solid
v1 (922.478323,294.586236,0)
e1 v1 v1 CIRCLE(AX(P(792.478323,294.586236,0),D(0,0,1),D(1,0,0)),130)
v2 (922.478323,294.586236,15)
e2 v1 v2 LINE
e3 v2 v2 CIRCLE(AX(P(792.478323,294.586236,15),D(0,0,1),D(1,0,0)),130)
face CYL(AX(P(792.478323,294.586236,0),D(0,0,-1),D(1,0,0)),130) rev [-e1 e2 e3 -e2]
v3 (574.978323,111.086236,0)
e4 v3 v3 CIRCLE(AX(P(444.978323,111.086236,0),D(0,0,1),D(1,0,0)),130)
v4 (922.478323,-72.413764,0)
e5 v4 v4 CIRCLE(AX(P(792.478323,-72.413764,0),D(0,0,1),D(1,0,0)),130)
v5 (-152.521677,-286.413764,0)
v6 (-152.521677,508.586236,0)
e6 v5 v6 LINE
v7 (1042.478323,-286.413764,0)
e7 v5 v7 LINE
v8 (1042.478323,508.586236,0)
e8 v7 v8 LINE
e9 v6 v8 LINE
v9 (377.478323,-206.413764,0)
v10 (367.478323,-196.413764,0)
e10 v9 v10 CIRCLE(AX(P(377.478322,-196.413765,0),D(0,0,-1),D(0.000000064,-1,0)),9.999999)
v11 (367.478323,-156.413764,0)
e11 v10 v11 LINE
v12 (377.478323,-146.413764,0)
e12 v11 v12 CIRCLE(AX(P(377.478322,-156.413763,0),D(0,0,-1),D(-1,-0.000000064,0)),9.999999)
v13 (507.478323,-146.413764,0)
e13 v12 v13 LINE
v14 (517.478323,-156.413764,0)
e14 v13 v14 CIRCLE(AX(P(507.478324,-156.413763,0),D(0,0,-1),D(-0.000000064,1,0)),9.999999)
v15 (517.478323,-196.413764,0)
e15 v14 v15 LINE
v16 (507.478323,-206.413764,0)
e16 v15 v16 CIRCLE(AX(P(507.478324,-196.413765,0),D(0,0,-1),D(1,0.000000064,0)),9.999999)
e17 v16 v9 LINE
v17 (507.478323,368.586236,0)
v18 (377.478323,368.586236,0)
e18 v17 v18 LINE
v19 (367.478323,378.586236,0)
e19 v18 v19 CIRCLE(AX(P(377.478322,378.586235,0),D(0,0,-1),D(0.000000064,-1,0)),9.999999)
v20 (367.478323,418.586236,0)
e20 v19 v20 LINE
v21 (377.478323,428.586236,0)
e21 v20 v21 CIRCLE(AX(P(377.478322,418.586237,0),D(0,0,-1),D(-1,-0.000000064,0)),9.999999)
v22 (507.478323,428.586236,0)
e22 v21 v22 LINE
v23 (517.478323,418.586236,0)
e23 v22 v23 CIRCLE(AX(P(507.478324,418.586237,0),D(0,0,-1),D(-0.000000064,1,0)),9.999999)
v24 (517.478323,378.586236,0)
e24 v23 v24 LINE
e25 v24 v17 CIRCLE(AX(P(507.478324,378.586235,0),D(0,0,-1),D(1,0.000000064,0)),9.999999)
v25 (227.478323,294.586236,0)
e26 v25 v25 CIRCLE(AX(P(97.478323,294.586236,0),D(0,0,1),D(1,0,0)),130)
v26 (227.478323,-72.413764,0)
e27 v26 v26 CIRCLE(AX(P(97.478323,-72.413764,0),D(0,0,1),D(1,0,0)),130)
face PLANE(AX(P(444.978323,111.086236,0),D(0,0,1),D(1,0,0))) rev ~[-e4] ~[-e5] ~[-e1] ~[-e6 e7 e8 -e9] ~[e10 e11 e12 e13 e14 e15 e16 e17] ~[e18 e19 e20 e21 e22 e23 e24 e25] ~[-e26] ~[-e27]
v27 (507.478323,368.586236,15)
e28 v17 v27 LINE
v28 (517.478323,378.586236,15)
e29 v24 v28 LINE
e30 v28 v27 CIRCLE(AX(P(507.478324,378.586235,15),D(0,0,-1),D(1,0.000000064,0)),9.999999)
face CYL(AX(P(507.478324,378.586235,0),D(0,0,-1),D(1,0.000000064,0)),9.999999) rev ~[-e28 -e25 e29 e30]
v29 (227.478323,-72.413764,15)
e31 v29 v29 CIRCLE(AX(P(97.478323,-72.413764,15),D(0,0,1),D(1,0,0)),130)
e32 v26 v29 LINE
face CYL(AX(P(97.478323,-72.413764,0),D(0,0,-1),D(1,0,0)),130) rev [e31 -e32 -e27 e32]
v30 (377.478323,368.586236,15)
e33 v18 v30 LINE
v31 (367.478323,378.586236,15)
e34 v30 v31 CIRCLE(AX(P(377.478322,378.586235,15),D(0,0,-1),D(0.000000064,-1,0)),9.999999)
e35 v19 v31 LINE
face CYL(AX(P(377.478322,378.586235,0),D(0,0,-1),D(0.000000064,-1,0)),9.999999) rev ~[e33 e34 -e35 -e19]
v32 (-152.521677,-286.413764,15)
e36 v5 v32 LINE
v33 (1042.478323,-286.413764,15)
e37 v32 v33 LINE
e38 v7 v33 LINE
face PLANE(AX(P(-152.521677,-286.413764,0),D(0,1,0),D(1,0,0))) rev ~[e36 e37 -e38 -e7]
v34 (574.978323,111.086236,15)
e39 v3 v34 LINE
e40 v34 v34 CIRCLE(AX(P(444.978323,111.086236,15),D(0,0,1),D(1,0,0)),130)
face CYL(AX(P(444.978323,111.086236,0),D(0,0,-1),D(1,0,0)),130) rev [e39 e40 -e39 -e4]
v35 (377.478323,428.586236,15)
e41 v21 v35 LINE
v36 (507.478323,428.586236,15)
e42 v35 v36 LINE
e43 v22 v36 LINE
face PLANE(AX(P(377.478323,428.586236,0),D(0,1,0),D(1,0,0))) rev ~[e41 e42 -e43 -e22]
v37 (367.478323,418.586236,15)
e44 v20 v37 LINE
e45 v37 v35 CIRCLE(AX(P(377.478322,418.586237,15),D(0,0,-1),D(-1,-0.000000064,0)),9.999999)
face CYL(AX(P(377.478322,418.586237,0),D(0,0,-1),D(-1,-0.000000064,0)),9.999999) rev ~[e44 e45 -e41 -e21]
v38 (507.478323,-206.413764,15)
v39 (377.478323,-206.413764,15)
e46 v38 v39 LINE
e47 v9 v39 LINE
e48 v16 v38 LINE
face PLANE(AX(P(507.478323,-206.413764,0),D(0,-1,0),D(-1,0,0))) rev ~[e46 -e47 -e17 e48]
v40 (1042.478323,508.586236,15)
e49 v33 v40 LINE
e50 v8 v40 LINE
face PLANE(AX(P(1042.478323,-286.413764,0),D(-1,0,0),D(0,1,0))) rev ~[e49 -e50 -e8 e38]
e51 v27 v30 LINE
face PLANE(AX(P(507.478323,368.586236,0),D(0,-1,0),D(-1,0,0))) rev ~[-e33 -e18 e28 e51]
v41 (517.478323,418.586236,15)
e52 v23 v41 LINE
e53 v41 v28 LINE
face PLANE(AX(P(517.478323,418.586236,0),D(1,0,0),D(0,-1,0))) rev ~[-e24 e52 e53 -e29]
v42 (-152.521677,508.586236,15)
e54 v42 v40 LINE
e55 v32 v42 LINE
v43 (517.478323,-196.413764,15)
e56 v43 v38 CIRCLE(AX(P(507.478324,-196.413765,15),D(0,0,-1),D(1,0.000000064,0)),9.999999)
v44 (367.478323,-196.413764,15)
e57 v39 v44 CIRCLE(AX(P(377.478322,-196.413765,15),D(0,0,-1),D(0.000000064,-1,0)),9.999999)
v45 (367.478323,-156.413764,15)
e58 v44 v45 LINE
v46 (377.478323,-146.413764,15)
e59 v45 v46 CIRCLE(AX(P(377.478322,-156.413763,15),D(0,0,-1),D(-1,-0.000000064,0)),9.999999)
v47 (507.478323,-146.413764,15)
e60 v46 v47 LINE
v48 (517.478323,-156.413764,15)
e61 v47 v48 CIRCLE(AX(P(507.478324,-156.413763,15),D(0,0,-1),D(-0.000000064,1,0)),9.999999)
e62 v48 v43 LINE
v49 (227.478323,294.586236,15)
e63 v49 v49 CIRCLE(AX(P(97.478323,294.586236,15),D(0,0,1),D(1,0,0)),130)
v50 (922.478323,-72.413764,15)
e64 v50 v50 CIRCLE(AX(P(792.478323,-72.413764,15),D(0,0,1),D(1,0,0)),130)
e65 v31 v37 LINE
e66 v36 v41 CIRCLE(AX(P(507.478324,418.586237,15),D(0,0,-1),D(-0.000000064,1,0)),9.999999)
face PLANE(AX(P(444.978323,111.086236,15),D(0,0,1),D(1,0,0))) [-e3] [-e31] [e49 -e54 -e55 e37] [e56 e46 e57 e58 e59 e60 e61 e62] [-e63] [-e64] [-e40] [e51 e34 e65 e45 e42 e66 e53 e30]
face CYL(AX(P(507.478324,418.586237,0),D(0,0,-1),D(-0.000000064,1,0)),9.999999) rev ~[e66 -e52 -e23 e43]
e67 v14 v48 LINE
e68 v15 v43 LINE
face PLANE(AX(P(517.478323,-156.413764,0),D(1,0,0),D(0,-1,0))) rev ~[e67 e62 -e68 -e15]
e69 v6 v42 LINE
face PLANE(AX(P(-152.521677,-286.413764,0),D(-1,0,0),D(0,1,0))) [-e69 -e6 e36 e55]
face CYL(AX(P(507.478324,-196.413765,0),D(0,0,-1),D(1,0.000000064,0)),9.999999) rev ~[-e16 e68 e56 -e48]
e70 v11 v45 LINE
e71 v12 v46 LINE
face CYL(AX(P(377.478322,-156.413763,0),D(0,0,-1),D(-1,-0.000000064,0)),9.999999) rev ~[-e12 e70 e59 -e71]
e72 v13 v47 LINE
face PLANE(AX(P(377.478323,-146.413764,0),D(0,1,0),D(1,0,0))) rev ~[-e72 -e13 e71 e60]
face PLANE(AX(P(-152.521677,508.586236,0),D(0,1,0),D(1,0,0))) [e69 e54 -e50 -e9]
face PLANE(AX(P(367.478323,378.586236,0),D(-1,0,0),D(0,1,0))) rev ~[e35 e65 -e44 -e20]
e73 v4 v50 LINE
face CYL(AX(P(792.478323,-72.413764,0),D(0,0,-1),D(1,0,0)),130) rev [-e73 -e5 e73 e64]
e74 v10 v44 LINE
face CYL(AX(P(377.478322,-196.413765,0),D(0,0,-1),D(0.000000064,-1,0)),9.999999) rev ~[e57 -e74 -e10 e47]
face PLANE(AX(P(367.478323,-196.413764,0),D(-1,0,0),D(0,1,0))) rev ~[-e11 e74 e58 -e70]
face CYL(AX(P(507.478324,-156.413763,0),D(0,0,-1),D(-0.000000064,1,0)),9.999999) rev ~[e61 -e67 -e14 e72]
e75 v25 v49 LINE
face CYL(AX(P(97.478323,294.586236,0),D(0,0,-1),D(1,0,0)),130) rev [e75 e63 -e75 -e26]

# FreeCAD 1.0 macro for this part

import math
import FreeCAD as App
import Part
import Sketcher


def add_polygon(sketch, points):
    """Adds a closed chain of lines whose ends are joined by coincident constraints."""
    first, n = sketch.GeometryCount, len(points)
    for a, b in zip(points, points[1:] + points[:1]):
        sketch.addGeometry(Part.LineSegment(App.Vector(*a, 0), App.Vector(*b, 0)), False)
    for i in range(n):
        sketch.addConstraint(Sketcher.Constraint("Coincident", first + i, 2, first + (i + 1) % n, 1))

doc = App.newDocument("Part")
params = doc.addObject("Spreadsheet::Sheet", "Params")
for row, (alias, value) in enumerate([
    ("sketch1_diameter", "260 mm"),
    ("sketch1_radius", "9.999999 mm"),
    ("sketch1_width", "1195 mm"),
    ("sketch1_width2", "130 mm"),
    ("sketch1_height", "795 mm"),
    ("pad1_length", "15 mm"),
], start=1):
    params.set(f"A{row}", alias)
    params.set(f"B{row}", "=" + value)
    params.setAlias(f"B{row}", alias)

body = doc.addObject("PartDesign::Body", "Body")

sketch1 = doc.addObject("Sketcher::SketchObject", "Sketch")
body.addObject(sketch1)
sketch1.AttachmentSupport = (doc.XY_Plane, [""])
sketch1.MapMode = "FlatFace"
add_polygon(sketch1, [(-153, 509), (-153, -286), (1042, -286), (1042, 509)])
sketch1.addGeometry(Part.Circle(App.Vector(97, -72, 0), App.Vector(0, 0, 1), 130), False)
sketch1.addGeometry(Part.LineSegment(App.Vector(367, -196, 0), App.Vector(367, -156, 0)), False)
sketch1.addGeometry(Part.ArcOfCircle(Part.Circle(App.Vector(377, -156, 0), App.Vector(0, 0, 1), 10), math.radians(90), math.radians(180)), False)
sketch1.addGeometry(Part.LineSegment(App.Vector(377, -146, 0), App.Vector(507, -146, 0)), False)
sketch1.addGeometry(Part.ArcOfCircle(Part.Circle(App.Vector(507, -156, 0), App.Vector(0, 0, 1), 10), math.radians(0), math.radians(90)), False)
sketch1.addGeometry(Part.LineSegment(App.Vector(517, -156, 0), App.Vector(517, -196, 0)), False)
sketch1.addGeometry(Part.ArcOfCircle(Part.Circle(App.Vector(507, -196, 0), App.Vector(0, 0, 1), 10), math.radians(-90), math.radians(0)), False)
sketch1.addGeometry(Part.LineSegment(App.Vector(507, -206, 0), App.Vector(377, -206, 0)), False)
sketch1.addGeometry(Part.ArcOfCircle(Part.Circle(App.Vector(377, -196, 0), App.Vector(0, 0, 1), 10), math.radians(180), math.radians(270)), False)
sketch1.addGeometry(Part.Circle(App.Vector(792, -72, 0), App.Vector(0, 0, 1), 130), False)
sketch1.addGeometry(Part.Circle(App.Vector(97, 295, 0), App.Vector(0, 0, 1), 130), False)
sketch1.addGeometry(Part.LineSegment(App.Vector(367, 379, 0), App.Vector(367, 419, 0)), False)
sketch1.addGeometry(Part.ArcOfCircle(Part.Circle(App.Vector(377, 419, 0), App.Vector(0, 0, 1), 10), math.radians(90), math.radians(180)), False)
sketch1.addGeometry(Part.LineSegment(App.Vector(377, 429, 0), App.Vector(507, 429, 0)), False)
sketch1.addGeometry(Part.ArcOfCircle(Part.Circle(App.Vector(507, 419, 0), App.Vector(0, 0, 1), 10), math.radians(0), math.radians(90)), False)
sketch1.addGeometry(Part.LineSegment(App.Vector(517, 419, 0), App.Vector(517, 379, 0)), False)
sketch1.addGeometry(Part.ArcOfCircle(Part.Circle(App.Vector(507, 379, 0), App.Vector(0, 0, 1), 10), math.radians(-90), math.radians(0)), False)
sketch1.addGeometry(Part.LineSegment(App.Vector(507, 369, 0), App.Vector(377, 369, 0)), False)
sketch1.addGeometry(Part.ArcOfCircle(Part.Circle(App.Vector(377, 379, 0), App.Vector(0, 0, 1), 10), math.radians(180), math.radians(270)), False)
sketch1.addGeometry(Part.Circle(App.Vector(445, 111, 0), App.Vector(0, 0, 1), 130), False)
sketch1.addGeometry(Part.Circle(App.Vector(792, 295, 0), App.Vector(0, 0, 1), 130), False)
sketch1.addConstraint(Sketcher.Constraint("Tangent", 5, 2, 6, 2))
sketch1.addConstraint(Sketcher.Constraint("Tangent", 6, 1, 7, 1))
sketch1.addConstraint(Sketcher.Constraint("Tangent", 7, 2, 8, 2))
sketch1.addConstraint(Sketcher.Constraint("Tangent", 8, 1, 9, 1))
sketch1.addConstraint(Sketcher.Constraint("Tangent", 9, 2, 10, 2))
sketch1.addConstraint(Sketcher.Constraint("Tangent", 10, 1, 11, 1))
sketch1.addConstraint(Sketcher.Constraint("Tangent", 11, 2, 12, 2))
sketch1.addConstraint(Sketcher.Constraint("Tangent", 12, 1, 5, 1))
sketch1.addConstraint(Sketcher.Constraint("Tangent", 15, 2, 16, 2))
sketch1.addConstraint(Sketcher.Constraint("Tangent", 16, 1, 17, 1))
sketch1.addConstraint(Sketcher.Constraint("Tangent", 17, 2, 18, 2))
sketch1.addConstraint(Sketcher.Constraint("Tangent", 18, 1, 19, 1))
sketch1.addConstraint(Sketcher.Constraint("Tangent", 19, 2, 20, 2))
sketch1.addConstraint(Sketcher.Constraint("Tangent", 20, 1, 21, 1))
sketch1.addConstraint(Sketcher.Constraint("Tangent", 21, 2, 22, 2))
sketch1.addConstraint(Sketcher.Constraint("Tangent", 22, 1, 15, 1))
sketch1.addConstraint(Sketcher.Constraint("Vertical", 0))
sketch1.addConstraint(Sketcher.Constraint("Horizontal", 1))
sketch1.addConstraint(Sketcher.Constraint("Vertical", 2))
sketch1.addConstraint(Sketcher.Constraint("Horizontal", 3))
sketch1.addConstraint(Sketcher.Constraint("Vertical", 5))
sketch1.addConstraint(Sketcher.Constraint("Horizontal", 7))
sketch1.addConstraint(Sketcher.Constraint("Vertical", 9))
sketch1.addConstraint(Sketcher.Constraint("Horizontal", 11))
sketch1.addConstraint(Sketcher.Constraint("Vertical", 15))
sketch1.addConstraint(Sketcher.Constraint("Horizontal", 17))
sketch1.addConstraint(Sketcher.Constraint("Vertical", 19))
sketch1.addConstraint(Sketcher.Constraint("Horizontal", 21))
sketch1.addConstraint(Sketcher.Constraint("Equal", 6, 8))
sketch1.addConstraint(Sketcher.Constraint("Equal", 8, 10))
sketch1.addConstraint(Sketcher.Constraint("Equal", 10, 12))
sketch1.addConstraint(Sketcher.Constraint("Equal", 4, 13))
sketch1.addConstraint(Sketcher.Constraint("Equal", 13, 14))
sketch1.addConstraint(Sketcher.Constraint("Equal", 12, 16))
sketch1.addConstraint(Sketcher.Constraint("Equal", 16, 18))
sketch1.addConstraint(Sketcher.Constraint("Equal", 18, 20))
sketch1.addConstraint(Sketcher.Constraint("Equal", 20, 22))
sketch1.addConstraint(Sketcher.Constraint("Equal", 14, 23))
sketch1.addConstraint(Sketcher.Constraint("Equal", 23, 24))
sketch1.addConstraint(Sketcher.Constraint("Horizontal", 4, 3, 13, 3))
sketch1.addConstraint(Sketcher.Constraint("Horizontal", 14, 3, 24, 3))
sketch1.addConstraint(Sketcher.Constraint("Vertical", 4, 3, 14, 3))
sketch1.addConstraint(Sketcher.Constraint("Vertical", 12, 3, 16, 3))
sketch1.addConstraint(Sketcher.Constraint("Vertical", 10, 3, 18, 3))
sketch1.addConstraint(Sketcher.Constraint("Vertical", 13, 3, 24, 3))
sketch1.addConstraint(Sketcher.Constraint("Equal", 9, 15))
sketch1.addConstraint(Sketcher.Constraint("Diameter", 4, 260.0))
sketch1.addConstraint(Sketcher.Constraint("Radius", 6, 9.999999))
sketch1.addConstraint(Sketcher.Constraint("DistanceX", 1, 1, 1, 2, 1195.0))
sketch1.addConstraint(Sketcher.Constraint("DistanceX", 7, 1, 7, 2, 130.0))
sketch1.addConstraint(Sketcher.Constraint("DistanceY", 0, 2, 0, 1, 795.0))
sketch1.addConstraint(Sketcher.Constraint("DistanceY", 5, 1, 5, 2, 40.0))
sketch1.addConstraint(Sketcher.Constraint("DistanceX", 4, 3, 6, 3, 279.999999))
sketch1.addConstraint(Sketcher.Constraint("DistanceY", 6, 3, 4, 3, 83.999999))
sketch1.addConstraint(Sketcher.Constraint("DistanceX", 8, 3, 13, 3, 284.999999))
sketch1.addConstraint(Sketcher.Constraint("DistanceY", 4, 3, 14, 3, 367.0))
sketch1.addConstraint(Sketcher.Constraint("DistanceY", 14, 3, 16, 3, 124.000001))
sketch1.addConstraint(Sketcher.Constraint("DistanceX", 0, 2, 4, 3, 250.0))
sketch1.addConstraint(Sketcher.Constraint("DistanceY", 0, 2, 4, 3, 214.0))
sketch1.addConstraint(Sketcher.Constraint("DistanceX", 23, 3, 8, 3, 62.500001))
sketch1.addConstraint(Sketcher.Constraint("DistanceY", 8, 3, 23, 3, 267.499999))
sketch1.addConstraint(Sketcher.Constraint("DistanceX", -1, 1, 4, 3, 97.478323))
sketch1.addConstraint(Sketcher.Constraint("DistanceY", 4, 3, -1, 1, 72.413764))
sketch1.setExpression("Constraints[50]", "Params.sketch1_diameter")
sketch1.setExpression("Constraints[51]", "Params.sketch1_radius")
sketch1.setExpression("Constraints[52]", "Params.sketch1_width")
sketch1.setExpression("Constraints[53]", "Params.sketch1_width2")
sketch1.setExpression("Constraints[54]", "Params.sketch1_height")
pad1 = doc.addObject("PartDesign::Pad", "Pad")
body.addObject(pad1)
pad1.Profile = sketch1
pad1.setExpression("Length", "Params.pad1_length")

doc.recompute()
